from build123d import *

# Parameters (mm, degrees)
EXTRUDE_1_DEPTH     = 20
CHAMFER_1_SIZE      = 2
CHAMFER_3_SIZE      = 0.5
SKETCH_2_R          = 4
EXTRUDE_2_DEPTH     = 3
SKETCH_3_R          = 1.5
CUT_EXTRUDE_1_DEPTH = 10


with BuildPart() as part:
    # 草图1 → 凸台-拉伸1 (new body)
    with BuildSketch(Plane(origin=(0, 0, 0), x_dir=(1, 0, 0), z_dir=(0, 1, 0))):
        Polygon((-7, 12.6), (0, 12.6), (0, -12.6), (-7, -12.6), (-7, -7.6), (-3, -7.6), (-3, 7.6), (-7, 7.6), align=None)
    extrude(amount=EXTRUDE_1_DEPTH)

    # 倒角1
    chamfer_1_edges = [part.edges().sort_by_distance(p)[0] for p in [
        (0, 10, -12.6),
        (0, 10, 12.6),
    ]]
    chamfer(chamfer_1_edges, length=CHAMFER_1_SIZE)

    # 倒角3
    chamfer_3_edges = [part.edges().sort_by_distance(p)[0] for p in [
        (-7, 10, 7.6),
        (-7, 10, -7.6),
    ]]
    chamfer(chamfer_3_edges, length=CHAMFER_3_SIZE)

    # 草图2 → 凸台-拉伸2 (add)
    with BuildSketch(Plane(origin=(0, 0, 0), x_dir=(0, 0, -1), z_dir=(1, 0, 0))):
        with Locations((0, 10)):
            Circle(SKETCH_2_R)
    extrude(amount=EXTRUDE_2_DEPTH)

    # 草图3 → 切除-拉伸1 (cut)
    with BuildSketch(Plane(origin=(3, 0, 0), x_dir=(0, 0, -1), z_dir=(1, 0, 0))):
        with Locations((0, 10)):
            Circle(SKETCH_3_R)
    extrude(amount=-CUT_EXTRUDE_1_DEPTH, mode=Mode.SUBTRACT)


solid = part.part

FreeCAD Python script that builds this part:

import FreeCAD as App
import Part
import Sketcher

V = App.Vector
Q = App.Units.Quantity


def edges_at(feature, points):
    """Names of the edges that pass closest to the given points."""
    edges = feature.Shape.Edges
    near = lambda p: min(range(len(edges)), key=lambda i: edges[i].distToShape(Part.Vertex(*p))[0])
    return sorted({f"Edge{near(p) + 1}" for p in points})

doc = App.newDocument("Part")
body = doc.addObject("PartDesign::Body", "Body")

# Sketch on XZ plane
sketch1 = body.newObject("Sketcher::SketchObject", "Sketch")
sketch1.AttachmentSupport = (doc.getObject("XZ_Plane"), [""])
sketch1.MapMode = "FlatFace"
sketch1.addGeometry(Part.LineSegment(V(0, -12.6, 0), V(-7, -12.6, 0)), False)
sketch1.addGeometry(Part.LineSegment(V(-7, -12.6, 0), V(-7, -7.6, 0)), False)
sketch1.addGeometry(Part.LineSegment(V(-7, -7.6, 0), V(-3, -7.6, 0)), False)
sketch1.addGeometry(Part.LineSegment(V(-3, -7.6, 0), V(-3, 7.6, 0)), False)
sketch1.addGeometry(Part.LineSegment(V(-3, 7.6, 0), V(-7, 7.6, 0)), False)
sketch1.addGeometry(Part.LineSegment(V(-7, 7.6, 0), V(-7, 12.6, 0)), False)
sketch1.addGeometry(Part.LineSegment(V(-7, 12.6, 0), V(0, 12.6, 0)), False)
sketch1.addGeometry(Part.LineSegment(V(0, 12.6, 0), V(0, -12.6, 0)), False)
sketch1.addConstraint(Sketcher.Constraint("Coincident", 0, 2, 1, 1))
sketch1.addConstraint(Sketcher.Constraint("Coincident", 1, 2, 2, 1))
sketch1.addConstraint(Sketcher.Constraint("Coincident", 2, 2, 3, 1))
sketch1.addConstraint(Sketcher.Constraint("Coincident", 3, 2, 4, 1))
sketch1.addConstraint(Sketcher.Constraint("Coincident", 4, 2, 5, 1))
sketch1.addConstraint(Sketcher.Constraint("Coincident", 5, 2, 6, 1))
sketch1.addConstraint(Sketcher.Constraint("Coincident", 6, 2, 7, 1))
sketch1.addConstraint(Sketcher.Constraint("Coincident", 7, 2, 0, 1))
sketch1.addConstraint(Sketcher.Constraint("Horizontal", 0))
sketch1.addConstraint(Sketcher.Constraint("Vertical", 1))
sketch1.addConstraint(Sketcher.Constraint("Horizontal", 2))
sketch1.addConstraint(Sketcher.Constraint("Vertical", 3))
sketch1.addConstraint(Sketcher.Constraint("Horizontal", 4))
sketch1.addConstraint(Sketcher.Constraint("Vertical", 5))
sketch1.addConstraint(Sketcher.Constraint("Horizontal", 6))
sketch1.addConstraint(Sketcher.Constraint("Vertical", 7))
sketch1.addConstraint(Sketcher.Constraint("Symmetric", 6, 2, 7, 2, -1, 1))
sketch1.addConstraint(Sketcher.Constraint("Symmetric", 1, 2, 4, 2, -1))
sketch1.addConstraint(Sketcher.Constraint("DistanceX", 0, 2, 0, 1, Q("7 mm")))
sketch1.addConstraint(Sketcher.Constraint("DistanceX", 2, 1, 2, 2, Q("4 mm")))
sketch1.addConstraint(Sketcher.Constraint("DistanceY", 1, 1, 1, 2, Q("5 mm")))
sketch1.addConstraint(Sketcher.Constraint("DistanceY", 3, 1, 3, 2, Q("15.2 mm")))
pad1 = body.newObject("PartDesign::Pad", "Pad")
pad1.Profile = sketch1
pad1.Length = 20
pad1.Reversed = True
doc.recompute()

chamfer = body.newObject("PartDesign::Chamfer", "Chamfer")
chamfer.Base = (pad1, edges_at(pad1, [(0, 10, -12.6), (0, 10, 12.6)]))
chamfer.Size = 2
doc.recompute()

chamfer2 = body.newObject("PartDesign::Chamfer", "Chamfer001")
chamfer2.Base = (chamfer, edges_at(chamfer, [(-7, 10, 7.6), (-7, 10, -7.6)]))
chamfer2.Size = 0.5

# Sketch on YZ plane
sketch2 = body.newObject("Sketcher::SketchObject", "Sketch001")
sketch2.AttachmentSupport = (doc.getObject("YZ_Plane"), [""])
sketch2.MapMode = "FlatFace"
sketch2.addGeometry(Part.Circle(V(10, 0, 0), V(0, 0, 1), 4), False)
sketch2.addConstraint(Sketcher.Constraint("PointOnObject", 0, 3, -1))
sketch2.addConstraint(Sketcher.Constraint("Diameter", 0, Q("8 mm")))
sketch2.addConstraint(Sketcher.Constraint("DistanceX", -1, 1, 0, 3, Q("10 mm")))
pad2 = body.newObject("PartDesign::Pad", "Pad001")
pad2.Profile = sketch2
pad2.Length = 3

# Sketch on YZ plane
sketch3 = body.newObject("Sketcher::SketchObject", "Sketch002")
sketch3.AttachmentSupport = (doc.getObject("YZ_Plane"), [""])
sketch3.MapMode = "FlatFace"
sketch3.AttachmentOffset = App.Placement(V(0, 0, 3), App.Rotation())
sketch3.addGeometry(Part.Circle(V(10, 0, 0), V(0, 0, 1), 1.5), False)
sketch3.addConstraint(Sketcher.Constraint("PointOnObject", 0, 3, -1))
sketch3.addConstraint(Sketcher.Constraint("Diameter", 0, Q("3 mm")))
sketch3.addConstraint(Sketcher.Constraint("DistanceX", -1, 1, 0, 3, Q("10 mm")))
pocket1 = body.newObject("PartDesign::Pocket", "Pocket")
pocket1.Profile = sketch3
pocket1.Length = 10

doc.recompute()
